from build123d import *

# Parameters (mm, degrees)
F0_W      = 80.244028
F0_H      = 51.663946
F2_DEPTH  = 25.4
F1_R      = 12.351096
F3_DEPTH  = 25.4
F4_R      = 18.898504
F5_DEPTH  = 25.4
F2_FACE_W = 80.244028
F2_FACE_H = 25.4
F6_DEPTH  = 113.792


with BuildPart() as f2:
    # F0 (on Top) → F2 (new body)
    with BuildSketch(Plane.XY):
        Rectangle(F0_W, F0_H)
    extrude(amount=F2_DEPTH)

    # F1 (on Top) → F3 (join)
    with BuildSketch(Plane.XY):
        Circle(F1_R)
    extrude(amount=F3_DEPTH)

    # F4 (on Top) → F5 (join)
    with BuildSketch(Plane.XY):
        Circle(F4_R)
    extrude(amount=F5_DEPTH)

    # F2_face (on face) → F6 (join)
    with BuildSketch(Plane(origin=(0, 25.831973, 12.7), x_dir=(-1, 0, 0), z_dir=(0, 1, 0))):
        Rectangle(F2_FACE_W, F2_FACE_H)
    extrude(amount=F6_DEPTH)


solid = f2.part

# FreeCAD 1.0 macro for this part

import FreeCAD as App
import Part
import Sketcher

V = App.Vector
Q = App.Units.Quantity


def add_polygon(sketch, points):
    """Adds a closed chain of lines whose ends are joined by coincident constraints."""
    first, n = sketch.GeometryCount, len(points)
    for a, b in zip(points, points[1:] + points[:1]):
        sketch.addGeometry(Part.LineSegment(App.Vector(*a, 0), App.Vector(*b, 0)), False)
    for i in range(n):
        sketch.addConstraint(Sketcher.Constraint("Coincident", first + i, 2, first + (i + 1) % n, 1))

doc = App.newDocument("Part")
body = doc.addObject("PartDesign::Body", "Body")

# Sketch on XY plane
sketch1 = body.newObject("Sketcher::SketchObject", "Sketch")
sketch1.AttachmentSupport = (doc.getObject("XY_Plane"), [""])
sketch1.MapMode = "FlatFace"
add_polygon(sketch1, [(-40, 26), (-40, -26), (40, -26), (40, 26)])  # lines 0-3
sketch1.addConstraint(Sketcher.Constraint("Vertical", 0))
sketch1.addConstraint(Sketcher.Constraint("Horizontal", 1))
sketch1.addConstraint(Sketcher.Constraint("Vertical", 2))
sketch1.addConstraint(Sketcher.Constraint("Horizontal", 3))
sketch1.addConstraint(Sketcher.Constraint("Symmetric", 0, 2, 2, 2, -1, 1))
sketch1.addConstraint(Sketcher.Constraint("DistanceX", 1, 1, 1, 2, 80.244028))
sketch1.addConstraint(Sketcher.Constraint("DistanceY", 0, 2, 0, 1, 51.663946))
pad1 = body.newObject("PartDesign::Pad", "Pad")
pad1.Profile = sketch1
pad1.Length = Q("1 in")

# Sketch on XY plane
sketch2 = body.newObject("Sketcher::SketchObject", "Sketch001")
sketch2.AttachmentSupport = (doc.getObject("XY_Plane"), [""])
sketch2.MapMode = "FlatFace"
sketch2.addGeometry(Part.Circle(V(0, 0, 0), V(0, 0, 1), 12), False)
sketch2.addConstraint(Sketcher.Constraint("Coincident", 0, 3, -1, 1))
sketch2.addConstraint(Sketcher.Constraint("Diameter", 0, 24.702192))
pad2 = body.newObject("PartDesign::Pad", "Pad001")
pad2.Profile = sketch2
pad2.Length = Q("1 in")

# Sketch on XY plane
sketch3 = body.newObject("Sketcher::SketchObject", "Sketch002")
sketch3.AttachmentSupport = (doc.getObject("XY_Plane"), [""])
sketch3.MapMode = "FlatFace"
sketch3.addGeometry(Part.Circle(V(0, 0, 0), V(0, 0, 1), 19), False)
sketch3.addConstraint(Sketcher.Constraint("Coincident", 0, 3, -1, 1))
sketch3.addConstraint(Sketcher.Constraint("Diameter", 0, 37.797008))
pad3 = body.newObject("PartDesign::Pad", "Pad002")
pad3.Profile = sketch3
pad3.Length = Q("1 in")

# Sketch on XZ plane
sketch4 = body.newObject("Sketcher::SketchObject", "Sketch003")
sketch4.AttachmentSupport = (doc.getObject("XZ_Plane"), [""])
sketch4.MapMode = "FlatFace"
sketch4.AttachmentOffset = App.Placement(V(0, 0, -25.831973), App.Rotation())
add_polygon(sketch4, [(40, 25), (40, 0), (-40, 0), (-40, 25)])  # lines 0-3
sketch4.addConstraint(Sketcher.Constraint("Vertical", 0))
sketch4.addConstraint(Sketcher.Constraint("Horizontal", 1))
sketch4.addConstraint(Sketcher.Constraint("Vertical", 2))
sketch4.addConstraint(Sketcher.Constraint("Horizontal", 3))
sketch4.addConstraint(Sketcher.Constraint("Symmetric", 0, 2, 1, 2, -1, 1))
sketch4.addConstraint(Sketcher.Constraint("DistanceY", 0, 2, 0, 1, Q("1 in")))
sketch4.addConstraint(Sketcher.Constraint("DistanceX", 1, 2, 1, 1, 80.244028))
pad4 = body.newObject("PartDesign::Pad", "Pad003")
pad4.Profile = sketch4
pad4.Length = Q("4.48 in")
pad4.Reversed = True

doc.recompute()
